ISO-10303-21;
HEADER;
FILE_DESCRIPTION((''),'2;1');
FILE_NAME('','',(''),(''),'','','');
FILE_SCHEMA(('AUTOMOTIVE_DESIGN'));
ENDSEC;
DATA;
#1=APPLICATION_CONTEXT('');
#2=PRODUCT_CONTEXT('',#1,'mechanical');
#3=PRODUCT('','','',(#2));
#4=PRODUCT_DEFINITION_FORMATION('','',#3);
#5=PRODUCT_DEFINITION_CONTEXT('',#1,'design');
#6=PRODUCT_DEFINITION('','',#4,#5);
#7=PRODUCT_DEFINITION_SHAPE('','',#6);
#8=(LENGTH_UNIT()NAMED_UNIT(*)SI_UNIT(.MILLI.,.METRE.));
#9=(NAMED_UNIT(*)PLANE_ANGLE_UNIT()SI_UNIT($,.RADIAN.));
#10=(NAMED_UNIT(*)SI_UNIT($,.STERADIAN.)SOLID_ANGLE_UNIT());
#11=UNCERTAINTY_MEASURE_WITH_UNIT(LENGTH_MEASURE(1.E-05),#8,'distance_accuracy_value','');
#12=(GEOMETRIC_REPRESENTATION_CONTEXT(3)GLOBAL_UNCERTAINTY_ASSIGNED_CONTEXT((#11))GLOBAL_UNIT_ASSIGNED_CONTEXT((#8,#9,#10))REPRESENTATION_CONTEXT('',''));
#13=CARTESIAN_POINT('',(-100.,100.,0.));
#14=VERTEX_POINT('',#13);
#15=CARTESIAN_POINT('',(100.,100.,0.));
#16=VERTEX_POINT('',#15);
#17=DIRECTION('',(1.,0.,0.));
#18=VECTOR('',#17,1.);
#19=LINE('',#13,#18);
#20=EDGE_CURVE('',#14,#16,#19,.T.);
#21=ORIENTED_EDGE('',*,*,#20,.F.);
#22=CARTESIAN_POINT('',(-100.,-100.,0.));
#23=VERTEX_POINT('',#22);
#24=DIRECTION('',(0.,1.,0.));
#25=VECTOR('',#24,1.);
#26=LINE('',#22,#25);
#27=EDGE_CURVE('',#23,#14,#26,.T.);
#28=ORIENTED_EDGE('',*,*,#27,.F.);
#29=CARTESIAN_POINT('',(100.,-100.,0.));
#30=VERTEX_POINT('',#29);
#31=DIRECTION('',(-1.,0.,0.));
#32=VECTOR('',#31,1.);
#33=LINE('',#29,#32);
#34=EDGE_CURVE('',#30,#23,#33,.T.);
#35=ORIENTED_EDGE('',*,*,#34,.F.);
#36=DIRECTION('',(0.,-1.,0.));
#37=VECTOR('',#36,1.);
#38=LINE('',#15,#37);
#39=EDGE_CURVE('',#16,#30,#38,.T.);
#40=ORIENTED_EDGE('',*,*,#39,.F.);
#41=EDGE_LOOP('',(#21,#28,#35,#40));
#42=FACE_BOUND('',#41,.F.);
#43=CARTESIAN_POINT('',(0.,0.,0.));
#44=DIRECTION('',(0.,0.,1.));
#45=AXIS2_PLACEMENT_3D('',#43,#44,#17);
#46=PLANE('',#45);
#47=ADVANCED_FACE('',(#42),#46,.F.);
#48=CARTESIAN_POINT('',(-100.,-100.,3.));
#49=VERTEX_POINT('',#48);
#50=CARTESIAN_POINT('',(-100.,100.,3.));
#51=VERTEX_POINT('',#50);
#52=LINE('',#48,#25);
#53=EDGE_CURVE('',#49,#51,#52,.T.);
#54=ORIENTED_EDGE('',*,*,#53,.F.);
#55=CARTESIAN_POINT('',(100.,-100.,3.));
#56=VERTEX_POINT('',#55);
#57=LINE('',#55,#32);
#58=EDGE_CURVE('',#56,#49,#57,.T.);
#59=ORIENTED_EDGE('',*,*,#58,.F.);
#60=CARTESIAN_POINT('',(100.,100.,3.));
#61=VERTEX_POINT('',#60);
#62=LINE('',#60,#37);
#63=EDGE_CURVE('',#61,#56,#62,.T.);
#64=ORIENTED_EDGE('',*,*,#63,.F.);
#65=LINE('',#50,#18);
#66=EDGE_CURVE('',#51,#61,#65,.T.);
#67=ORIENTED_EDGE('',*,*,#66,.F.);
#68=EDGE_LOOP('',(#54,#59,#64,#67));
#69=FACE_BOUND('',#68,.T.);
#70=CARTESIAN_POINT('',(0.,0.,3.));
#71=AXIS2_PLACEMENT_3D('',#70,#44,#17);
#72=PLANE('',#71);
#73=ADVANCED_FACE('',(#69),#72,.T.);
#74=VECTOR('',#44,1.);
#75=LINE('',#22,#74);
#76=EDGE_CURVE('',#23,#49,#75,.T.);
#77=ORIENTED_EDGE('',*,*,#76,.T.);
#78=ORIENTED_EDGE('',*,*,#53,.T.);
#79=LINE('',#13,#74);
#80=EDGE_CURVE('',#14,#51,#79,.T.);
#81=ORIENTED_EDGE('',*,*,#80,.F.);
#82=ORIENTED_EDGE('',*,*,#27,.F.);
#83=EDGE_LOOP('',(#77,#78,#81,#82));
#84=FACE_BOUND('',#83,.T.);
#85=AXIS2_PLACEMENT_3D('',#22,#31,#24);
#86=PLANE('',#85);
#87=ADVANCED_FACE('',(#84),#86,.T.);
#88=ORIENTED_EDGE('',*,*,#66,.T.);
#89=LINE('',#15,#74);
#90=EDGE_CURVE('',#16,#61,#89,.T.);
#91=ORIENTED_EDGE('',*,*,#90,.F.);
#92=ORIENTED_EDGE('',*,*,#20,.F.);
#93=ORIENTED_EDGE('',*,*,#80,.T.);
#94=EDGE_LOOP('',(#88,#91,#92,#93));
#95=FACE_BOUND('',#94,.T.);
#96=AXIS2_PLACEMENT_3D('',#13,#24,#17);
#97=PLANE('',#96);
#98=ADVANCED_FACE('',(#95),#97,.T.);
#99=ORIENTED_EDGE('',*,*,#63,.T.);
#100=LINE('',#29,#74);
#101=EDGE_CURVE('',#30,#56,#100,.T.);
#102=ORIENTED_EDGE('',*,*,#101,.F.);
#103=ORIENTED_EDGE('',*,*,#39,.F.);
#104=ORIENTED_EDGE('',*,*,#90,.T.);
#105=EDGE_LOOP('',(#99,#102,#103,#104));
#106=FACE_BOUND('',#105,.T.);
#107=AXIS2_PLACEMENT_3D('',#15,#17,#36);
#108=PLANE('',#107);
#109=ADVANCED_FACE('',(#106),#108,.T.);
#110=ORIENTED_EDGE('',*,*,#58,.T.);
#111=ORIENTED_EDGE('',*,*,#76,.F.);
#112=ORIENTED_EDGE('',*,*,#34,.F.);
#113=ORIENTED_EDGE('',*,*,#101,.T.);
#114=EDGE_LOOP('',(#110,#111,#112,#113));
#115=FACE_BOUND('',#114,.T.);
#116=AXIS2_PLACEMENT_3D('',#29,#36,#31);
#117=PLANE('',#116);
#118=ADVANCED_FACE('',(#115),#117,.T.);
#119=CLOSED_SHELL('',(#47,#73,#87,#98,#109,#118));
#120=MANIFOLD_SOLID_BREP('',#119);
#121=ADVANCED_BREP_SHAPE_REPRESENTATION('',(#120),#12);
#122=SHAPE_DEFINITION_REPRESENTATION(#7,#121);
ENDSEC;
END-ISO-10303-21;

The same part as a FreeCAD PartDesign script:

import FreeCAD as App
import Part
import Sketcher

V = App.Vector


def add_polygon(sketch, points):
    """Adds a closed chain of lines whose ends are joined by coincident constraints."""
    first, n = sketch.GeometryCount, len(points)
    for a, b in zip(points, points[1:] + points[:1]):
        sketch.addGeometry(Part.LineSegment(App.Vector(*a, 0), App.Vector(*b, 0)), False)
    for i in range(n):
        sketch.addConstraint(Sketcher.Constraint("Coincident", first + i, 2, first + (i + 1) % n, 1))

doc = App.newDocument("Part")
body = doc.addObject("PartDesign::Body", "Body")

sketch1 = doc.addObject("Sketcher::SketchObject", "Sketch")
body.addObject(sketch1)
sketch1.AttachmentSupport = (doc.XY_Plane, [""])
sketch1.MapMode = "FlatFace"
add_polygon(sketch1, [(-100, -100), (100, -100), (100, 100), (-100, 100)])
sketch1.addConstraint([
    Sketcher.Constraint("Horizontal", 0),
    Sketcher.Constraint("Vertical", 1),
    Sketcher.Constraint("Horizontal", 2),
    Sketcher.Constraint("Vertical", 3),
    Sketcher.Constraint("Symmetric", 0, 2, 2, 2, -1, 1),
    Sketcher.Constraint("Equal", 2, 1),
    Sketcher.Constraint("DistanceX", 0, 1, 0, 2, 200.0),
])
pad1 = doc.addObject("PartDesign::Pad", "Pad")
body.addObject(pad1)
pad1.Profile = sketch1
pad1.Length = 3

doc.recompute()
